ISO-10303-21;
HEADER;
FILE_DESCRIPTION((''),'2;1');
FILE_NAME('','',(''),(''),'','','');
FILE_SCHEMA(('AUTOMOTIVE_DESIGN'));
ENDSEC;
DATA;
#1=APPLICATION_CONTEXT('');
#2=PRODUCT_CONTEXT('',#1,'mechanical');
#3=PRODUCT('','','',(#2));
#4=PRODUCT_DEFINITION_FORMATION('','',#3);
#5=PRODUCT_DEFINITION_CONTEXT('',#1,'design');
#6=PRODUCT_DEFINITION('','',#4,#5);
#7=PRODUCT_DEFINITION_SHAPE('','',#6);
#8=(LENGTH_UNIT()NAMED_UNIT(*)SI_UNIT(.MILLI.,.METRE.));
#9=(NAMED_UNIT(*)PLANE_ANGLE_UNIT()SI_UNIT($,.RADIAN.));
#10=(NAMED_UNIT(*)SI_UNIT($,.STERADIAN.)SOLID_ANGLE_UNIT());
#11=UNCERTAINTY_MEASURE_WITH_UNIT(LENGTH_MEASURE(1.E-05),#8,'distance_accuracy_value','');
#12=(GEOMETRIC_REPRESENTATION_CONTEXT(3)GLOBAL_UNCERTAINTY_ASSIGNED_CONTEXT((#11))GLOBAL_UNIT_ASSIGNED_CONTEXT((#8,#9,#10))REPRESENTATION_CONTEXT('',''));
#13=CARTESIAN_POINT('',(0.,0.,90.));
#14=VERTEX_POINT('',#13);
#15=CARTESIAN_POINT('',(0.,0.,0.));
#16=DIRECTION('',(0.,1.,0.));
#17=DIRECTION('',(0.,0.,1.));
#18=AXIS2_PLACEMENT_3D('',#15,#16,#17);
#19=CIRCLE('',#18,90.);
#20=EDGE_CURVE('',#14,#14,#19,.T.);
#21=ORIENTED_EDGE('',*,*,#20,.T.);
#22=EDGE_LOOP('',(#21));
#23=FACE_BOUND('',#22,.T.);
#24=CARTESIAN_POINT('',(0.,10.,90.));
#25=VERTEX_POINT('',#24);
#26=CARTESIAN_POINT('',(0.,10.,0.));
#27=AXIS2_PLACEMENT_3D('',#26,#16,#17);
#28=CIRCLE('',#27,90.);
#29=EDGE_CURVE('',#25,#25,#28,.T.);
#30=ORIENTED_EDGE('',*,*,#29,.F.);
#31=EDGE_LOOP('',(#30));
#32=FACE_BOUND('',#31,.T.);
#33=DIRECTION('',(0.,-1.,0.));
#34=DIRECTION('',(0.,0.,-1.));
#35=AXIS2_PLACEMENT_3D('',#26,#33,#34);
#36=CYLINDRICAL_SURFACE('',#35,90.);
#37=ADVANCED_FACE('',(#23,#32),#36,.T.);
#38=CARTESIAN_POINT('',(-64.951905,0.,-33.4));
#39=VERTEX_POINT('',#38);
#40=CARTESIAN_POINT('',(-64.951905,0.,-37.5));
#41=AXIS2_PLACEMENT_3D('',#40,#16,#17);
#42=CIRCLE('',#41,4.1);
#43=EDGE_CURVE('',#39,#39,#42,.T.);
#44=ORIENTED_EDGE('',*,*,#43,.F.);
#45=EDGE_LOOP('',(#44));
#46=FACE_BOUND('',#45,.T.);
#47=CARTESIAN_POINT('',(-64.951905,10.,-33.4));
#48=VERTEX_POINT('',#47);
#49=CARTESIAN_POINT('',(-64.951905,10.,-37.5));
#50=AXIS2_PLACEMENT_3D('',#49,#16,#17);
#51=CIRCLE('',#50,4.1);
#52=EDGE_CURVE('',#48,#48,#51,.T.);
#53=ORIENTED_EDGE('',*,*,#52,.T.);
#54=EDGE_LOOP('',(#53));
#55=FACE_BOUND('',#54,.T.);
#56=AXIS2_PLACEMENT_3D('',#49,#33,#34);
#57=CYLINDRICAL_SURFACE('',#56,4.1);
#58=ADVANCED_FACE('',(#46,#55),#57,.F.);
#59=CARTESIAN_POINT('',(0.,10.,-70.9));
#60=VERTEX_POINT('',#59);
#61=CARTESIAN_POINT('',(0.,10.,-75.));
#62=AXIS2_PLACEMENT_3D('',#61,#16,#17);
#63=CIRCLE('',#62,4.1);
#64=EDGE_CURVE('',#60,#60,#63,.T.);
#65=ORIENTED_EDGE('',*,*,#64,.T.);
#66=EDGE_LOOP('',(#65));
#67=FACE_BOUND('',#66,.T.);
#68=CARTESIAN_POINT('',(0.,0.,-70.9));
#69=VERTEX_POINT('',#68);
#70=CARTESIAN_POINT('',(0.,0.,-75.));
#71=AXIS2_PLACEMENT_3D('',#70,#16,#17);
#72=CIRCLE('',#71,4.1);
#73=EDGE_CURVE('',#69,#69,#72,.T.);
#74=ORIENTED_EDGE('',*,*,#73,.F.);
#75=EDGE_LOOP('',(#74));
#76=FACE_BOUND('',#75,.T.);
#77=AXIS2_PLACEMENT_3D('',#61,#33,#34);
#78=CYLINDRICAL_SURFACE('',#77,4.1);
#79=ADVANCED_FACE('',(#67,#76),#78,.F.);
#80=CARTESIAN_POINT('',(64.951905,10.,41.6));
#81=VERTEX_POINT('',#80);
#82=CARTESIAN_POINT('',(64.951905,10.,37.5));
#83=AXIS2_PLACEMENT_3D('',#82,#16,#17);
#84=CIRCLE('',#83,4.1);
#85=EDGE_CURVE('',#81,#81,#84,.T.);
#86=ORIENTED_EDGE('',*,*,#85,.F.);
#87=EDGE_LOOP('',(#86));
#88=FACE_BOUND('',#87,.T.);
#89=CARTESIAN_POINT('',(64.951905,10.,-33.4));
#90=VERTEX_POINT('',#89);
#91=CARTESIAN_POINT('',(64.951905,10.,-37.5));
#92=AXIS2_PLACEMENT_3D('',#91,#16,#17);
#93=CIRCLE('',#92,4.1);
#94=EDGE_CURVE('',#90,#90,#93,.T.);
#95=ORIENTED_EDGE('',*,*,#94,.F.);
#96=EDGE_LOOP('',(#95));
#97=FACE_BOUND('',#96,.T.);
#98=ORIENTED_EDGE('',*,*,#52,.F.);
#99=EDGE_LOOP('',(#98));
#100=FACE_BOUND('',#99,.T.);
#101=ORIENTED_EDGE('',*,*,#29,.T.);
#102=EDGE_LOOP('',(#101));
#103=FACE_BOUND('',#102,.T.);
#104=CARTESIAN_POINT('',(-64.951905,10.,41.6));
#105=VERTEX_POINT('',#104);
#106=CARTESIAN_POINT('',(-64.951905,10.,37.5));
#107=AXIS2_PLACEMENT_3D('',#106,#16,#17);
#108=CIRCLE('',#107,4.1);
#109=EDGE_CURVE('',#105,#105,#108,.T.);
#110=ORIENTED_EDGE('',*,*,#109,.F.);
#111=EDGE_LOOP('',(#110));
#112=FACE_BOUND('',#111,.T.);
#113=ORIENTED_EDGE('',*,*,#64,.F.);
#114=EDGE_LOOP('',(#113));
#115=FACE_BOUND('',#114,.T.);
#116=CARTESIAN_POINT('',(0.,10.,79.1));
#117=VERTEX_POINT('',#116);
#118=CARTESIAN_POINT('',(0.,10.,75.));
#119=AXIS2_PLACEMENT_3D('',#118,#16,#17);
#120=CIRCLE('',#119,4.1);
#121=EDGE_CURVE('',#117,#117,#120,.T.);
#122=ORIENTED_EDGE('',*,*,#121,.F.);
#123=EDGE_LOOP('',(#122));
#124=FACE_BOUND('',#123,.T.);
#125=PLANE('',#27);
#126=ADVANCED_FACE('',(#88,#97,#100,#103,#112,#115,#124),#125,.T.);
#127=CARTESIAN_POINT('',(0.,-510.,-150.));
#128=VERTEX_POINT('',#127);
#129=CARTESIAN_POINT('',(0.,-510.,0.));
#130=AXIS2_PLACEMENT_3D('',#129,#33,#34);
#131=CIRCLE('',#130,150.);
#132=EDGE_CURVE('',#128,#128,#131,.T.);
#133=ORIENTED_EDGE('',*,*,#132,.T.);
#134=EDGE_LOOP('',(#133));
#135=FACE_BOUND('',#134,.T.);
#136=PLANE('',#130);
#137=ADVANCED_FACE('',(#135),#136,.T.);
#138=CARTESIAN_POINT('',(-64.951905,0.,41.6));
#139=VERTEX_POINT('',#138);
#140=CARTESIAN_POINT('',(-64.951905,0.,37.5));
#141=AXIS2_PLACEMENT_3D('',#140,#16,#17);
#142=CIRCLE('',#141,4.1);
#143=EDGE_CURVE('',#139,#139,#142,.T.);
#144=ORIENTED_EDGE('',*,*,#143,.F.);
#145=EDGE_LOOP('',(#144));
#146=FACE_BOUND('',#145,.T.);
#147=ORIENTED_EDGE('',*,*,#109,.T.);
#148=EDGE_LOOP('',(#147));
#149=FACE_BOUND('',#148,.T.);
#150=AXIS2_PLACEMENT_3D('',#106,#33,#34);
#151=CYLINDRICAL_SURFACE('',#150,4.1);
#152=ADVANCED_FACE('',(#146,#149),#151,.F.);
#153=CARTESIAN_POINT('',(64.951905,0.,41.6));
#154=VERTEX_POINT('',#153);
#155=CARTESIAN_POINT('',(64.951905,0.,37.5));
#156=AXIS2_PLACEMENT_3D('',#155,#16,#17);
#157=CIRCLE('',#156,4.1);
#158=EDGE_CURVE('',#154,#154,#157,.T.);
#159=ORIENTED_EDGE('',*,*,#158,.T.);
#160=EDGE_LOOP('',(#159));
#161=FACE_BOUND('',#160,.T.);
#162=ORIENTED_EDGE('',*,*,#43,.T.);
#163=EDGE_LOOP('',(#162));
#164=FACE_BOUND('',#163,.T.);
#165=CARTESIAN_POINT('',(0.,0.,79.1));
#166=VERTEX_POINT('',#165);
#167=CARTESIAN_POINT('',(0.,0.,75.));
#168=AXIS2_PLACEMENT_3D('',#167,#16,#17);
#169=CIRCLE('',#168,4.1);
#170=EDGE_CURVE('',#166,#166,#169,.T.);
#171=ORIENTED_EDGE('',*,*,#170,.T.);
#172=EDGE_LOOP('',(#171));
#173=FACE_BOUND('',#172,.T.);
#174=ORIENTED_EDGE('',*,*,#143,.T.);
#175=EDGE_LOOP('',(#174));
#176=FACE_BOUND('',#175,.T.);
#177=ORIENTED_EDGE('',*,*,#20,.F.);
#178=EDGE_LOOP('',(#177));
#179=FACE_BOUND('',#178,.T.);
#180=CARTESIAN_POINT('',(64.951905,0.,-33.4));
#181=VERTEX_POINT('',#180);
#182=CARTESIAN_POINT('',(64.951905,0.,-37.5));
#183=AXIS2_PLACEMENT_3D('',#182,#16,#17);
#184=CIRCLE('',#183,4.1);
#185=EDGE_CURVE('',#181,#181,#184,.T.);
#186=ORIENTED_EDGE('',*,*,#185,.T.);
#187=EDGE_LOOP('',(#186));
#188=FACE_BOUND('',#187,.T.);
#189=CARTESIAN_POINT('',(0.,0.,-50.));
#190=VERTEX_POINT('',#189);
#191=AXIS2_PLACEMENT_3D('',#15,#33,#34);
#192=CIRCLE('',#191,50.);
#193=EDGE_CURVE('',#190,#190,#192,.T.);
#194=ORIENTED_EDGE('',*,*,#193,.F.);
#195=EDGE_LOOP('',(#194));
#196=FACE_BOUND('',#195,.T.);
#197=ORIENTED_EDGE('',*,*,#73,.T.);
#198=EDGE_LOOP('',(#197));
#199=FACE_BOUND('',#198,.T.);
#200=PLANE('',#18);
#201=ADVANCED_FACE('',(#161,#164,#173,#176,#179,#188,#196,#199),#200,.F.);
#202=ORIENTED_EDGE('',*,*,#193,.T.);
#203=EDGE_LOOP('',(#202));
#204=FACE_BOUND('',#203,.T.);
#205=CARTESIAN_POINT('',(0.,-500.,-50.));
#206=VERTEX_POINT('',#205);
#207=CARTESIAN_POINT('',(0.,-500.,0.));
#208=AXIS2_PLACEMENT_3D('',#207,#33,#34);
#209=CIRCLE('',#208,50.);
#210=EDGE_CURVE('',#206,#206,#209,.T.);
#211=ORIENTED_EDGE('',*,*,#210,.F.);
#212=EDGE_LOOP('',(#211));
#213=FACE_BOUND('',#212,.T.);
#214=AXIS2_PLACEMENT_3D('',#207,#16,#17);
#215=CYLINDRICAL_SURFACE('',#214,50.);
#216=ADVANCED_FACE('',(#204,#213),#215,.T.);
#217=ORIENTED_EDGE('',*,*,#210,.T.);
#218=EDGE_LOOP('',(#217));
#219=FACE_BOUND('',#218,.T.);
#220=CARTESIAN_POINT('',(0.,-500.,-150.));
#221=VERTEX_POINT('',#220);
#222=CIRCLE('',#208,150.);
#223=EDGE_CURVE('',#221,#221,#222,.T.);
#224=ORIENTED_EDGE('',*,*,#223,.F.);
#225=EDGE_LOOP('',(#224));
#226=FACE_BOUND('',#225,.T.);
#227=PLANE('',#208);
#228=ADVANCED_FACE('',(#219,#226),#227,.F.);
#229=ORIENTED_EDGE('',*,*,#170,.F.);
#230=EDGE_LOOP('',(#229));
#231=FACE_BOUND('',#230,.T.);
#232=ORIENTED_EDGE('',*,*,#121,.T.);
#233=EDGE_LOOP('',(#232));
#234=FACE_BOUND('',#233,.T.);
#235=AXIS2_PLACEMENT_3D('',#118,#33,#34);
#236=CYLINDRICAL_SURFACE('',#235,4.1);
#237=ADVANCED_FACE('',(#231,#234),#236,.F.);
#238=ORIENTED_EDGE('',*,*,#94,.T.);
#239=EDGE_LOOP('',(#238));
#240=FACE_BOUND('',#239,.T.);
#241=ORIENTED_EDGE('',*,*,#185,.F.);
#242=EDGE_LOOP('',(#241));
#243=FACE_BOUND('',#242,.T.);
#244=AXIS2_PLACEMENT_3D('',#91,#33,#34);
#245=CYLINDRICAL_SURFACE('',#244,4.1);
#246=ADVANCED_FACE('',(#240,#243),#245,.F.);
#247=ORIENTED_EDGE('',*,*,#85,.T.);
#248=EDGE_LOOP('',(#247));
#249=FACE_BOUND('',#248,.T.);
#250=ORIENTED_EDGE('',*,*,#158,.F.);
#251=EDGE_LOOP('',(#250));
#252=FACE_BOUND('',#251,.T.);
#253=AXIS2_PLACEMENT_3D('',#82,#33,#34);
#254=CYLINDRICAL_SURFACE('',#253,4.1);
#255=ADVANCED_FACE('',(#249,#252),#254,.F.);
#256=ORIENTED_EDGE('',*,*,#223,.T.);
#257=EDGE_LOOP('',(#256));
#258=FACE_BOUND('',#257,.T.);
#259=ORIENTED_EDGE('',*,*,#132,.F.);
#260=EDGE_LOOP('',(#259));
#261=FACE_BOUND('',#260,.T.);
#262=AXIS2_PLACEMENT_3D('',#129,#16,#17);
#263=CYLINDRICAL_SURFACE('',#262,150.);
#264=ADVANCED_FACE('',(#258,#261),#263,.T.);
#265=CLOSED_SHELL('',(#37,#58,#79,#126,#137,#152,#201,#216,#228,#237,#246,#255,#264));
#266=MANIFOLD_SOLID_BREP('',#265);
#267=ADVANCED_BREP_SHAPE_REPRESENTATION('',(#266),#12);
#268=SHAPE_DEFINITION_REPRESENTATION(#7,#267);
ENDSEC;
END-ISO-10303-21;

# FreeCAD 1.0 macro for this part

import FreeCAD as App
import Part
import Sketcher
Q = App.Units.Quantity

doc = App.newDocument("Part")
body = doc.addObject("PartDesign::Body", "Body")

# Sketch on XZ plane
sketch1 = body.newObject("Sketcher::SketchObject", "Sketch")
sketch1.AttachmentSupport = (doc.getObject("XZ_Plane"), [""])
sketch1.MapMode = "FlatFace"
sketch1.addGeometry([
    Part.Circle(App.Vector(0, 0, 0), App.Vector(0, 0, 1), 90),  # 0
    Part.Circle(App.Vector(-64.951905, -37.5, 0), App.Vector(0, 0, 1), 4.1),  # 1
    Part.Circle(App.Vector(0, -75, 0), App.Vector(0, 0, 1), 4.1),  # 2
    Part.Circle(App.Vector(-64.951905, 37.5, 0), App.Vector(0, 0, 1), 4.1),  # 3
    Part.Circle(App.Vector(64.951905, -37.5, 0), App.Vector(0, 0, 1), 4.1),  # 4
    Part.Circle(App.Vector(0, 75, 0), App.Vector(0, 0, 1), 4.1),  # 5
    Part.Circle(App.Vector(64.951905, 37.5, 0), App.Vector(0, 0, 1), 4.1),  # 6
], False)
sketch1.addConstraint([
    Sketcher.Constraint("Coincident", 0, 3, -1, 1),
    Sketcher.Constraint("Equal", 1, 2),
    Sketcher.Constraint("Equal", 2, 3),
    Sketcher.Constraint("Equal", 3, 4),
    Sketcher.Constraint("Equal", 4, 5),
    Sketcher.Constraint("Equal", 5, 6),
    Sketcher.Constraint("Symmetric", 3, 3, 4, 3, -1, 1),
    Sketcher.Constraint("Symmetric", 2, 3, 5, 3, -1, 1),
    Sketcher.Constraint("Symmetric", 1, 3, 6, 3, -1, 1),
    Sketcher.Constraint("Symmetric", 1, 3, 4, 3, -2),
    Sketcher.Constraint("PointOnObject", 2, 3, -2),
    Sketcher.Constraint("Diameter", 0, Q("180 mm")),
    Sketcher.Constraint("Diameter", 1, Q("8.2 mm")),
    Sketcher.Constraint("DistanceY", 2, 3, -1, 1, Q("75 mm")),
    Sketcher.Constraint("DistanceY", 1, 3, 3, 3, Q("75 mm")),
    Sketcher.Constraint("DistanceX", 1, 3, 4, 3, Q("129.903811 mm")),
])
pad1 = body.newObject("PartDesign::Pad", "Pad")
pad1.Profile = sketch1
pad1.Length = 10
pad1.Reversed = True

# Sketch on XZ plane
sketch2 = body.newObject("Sketcher::SketchObject", "Sketch001")
sketch2.AttachmentSupport = (doc.getObject("XZ_Plane"), [""])
sketch2.MapMode = "FlatFace"
sketch2.addGeometry(Part.Circle(App.Vector(0, 0, 0), App.Vector(0, 0, 1), 50), False)
sketch2.addConstraint([
    Sketcher.Constraint("Coincident", 0, 3, -1, 1),
    Sketcher.Constraint("Diameter", 0, Q("100 mm")),
])
pad2 = body.newObject("PartDesign::Pad", "Pad001")
pad2.Profile = sketch2
pad2.Length = 500

# Sketch on XZ plane
sketch3 = body.newObject("Sketcher::SketchObject", "Sketch002")
sketch3.AttachmentSupport = (doc.getObject("XZ_Plane"), [""])
sketch3.MapMode = "FlatFace"
sketch3.AttachmentOffset = App.Placement(App.Vector(0, 0, 500), App.Rotation())
sketch3.addGeometry(Part.Circle(App.Vector(0, 0, 0), App.Vector(0, 0, 1), 150), False)
sketch3.addConstraint([
    Sketcher.Constraint("Coincident", 0, 3, -1, 1),
    Sketcher.Constraint("Diameter", 0, Q("300 mm")),
])
pad3 = body.newObject("PartDesign::Pad", "Pad002")
pad3.Profile = sketch3
pad3.Length = 10

doc.recompute()
